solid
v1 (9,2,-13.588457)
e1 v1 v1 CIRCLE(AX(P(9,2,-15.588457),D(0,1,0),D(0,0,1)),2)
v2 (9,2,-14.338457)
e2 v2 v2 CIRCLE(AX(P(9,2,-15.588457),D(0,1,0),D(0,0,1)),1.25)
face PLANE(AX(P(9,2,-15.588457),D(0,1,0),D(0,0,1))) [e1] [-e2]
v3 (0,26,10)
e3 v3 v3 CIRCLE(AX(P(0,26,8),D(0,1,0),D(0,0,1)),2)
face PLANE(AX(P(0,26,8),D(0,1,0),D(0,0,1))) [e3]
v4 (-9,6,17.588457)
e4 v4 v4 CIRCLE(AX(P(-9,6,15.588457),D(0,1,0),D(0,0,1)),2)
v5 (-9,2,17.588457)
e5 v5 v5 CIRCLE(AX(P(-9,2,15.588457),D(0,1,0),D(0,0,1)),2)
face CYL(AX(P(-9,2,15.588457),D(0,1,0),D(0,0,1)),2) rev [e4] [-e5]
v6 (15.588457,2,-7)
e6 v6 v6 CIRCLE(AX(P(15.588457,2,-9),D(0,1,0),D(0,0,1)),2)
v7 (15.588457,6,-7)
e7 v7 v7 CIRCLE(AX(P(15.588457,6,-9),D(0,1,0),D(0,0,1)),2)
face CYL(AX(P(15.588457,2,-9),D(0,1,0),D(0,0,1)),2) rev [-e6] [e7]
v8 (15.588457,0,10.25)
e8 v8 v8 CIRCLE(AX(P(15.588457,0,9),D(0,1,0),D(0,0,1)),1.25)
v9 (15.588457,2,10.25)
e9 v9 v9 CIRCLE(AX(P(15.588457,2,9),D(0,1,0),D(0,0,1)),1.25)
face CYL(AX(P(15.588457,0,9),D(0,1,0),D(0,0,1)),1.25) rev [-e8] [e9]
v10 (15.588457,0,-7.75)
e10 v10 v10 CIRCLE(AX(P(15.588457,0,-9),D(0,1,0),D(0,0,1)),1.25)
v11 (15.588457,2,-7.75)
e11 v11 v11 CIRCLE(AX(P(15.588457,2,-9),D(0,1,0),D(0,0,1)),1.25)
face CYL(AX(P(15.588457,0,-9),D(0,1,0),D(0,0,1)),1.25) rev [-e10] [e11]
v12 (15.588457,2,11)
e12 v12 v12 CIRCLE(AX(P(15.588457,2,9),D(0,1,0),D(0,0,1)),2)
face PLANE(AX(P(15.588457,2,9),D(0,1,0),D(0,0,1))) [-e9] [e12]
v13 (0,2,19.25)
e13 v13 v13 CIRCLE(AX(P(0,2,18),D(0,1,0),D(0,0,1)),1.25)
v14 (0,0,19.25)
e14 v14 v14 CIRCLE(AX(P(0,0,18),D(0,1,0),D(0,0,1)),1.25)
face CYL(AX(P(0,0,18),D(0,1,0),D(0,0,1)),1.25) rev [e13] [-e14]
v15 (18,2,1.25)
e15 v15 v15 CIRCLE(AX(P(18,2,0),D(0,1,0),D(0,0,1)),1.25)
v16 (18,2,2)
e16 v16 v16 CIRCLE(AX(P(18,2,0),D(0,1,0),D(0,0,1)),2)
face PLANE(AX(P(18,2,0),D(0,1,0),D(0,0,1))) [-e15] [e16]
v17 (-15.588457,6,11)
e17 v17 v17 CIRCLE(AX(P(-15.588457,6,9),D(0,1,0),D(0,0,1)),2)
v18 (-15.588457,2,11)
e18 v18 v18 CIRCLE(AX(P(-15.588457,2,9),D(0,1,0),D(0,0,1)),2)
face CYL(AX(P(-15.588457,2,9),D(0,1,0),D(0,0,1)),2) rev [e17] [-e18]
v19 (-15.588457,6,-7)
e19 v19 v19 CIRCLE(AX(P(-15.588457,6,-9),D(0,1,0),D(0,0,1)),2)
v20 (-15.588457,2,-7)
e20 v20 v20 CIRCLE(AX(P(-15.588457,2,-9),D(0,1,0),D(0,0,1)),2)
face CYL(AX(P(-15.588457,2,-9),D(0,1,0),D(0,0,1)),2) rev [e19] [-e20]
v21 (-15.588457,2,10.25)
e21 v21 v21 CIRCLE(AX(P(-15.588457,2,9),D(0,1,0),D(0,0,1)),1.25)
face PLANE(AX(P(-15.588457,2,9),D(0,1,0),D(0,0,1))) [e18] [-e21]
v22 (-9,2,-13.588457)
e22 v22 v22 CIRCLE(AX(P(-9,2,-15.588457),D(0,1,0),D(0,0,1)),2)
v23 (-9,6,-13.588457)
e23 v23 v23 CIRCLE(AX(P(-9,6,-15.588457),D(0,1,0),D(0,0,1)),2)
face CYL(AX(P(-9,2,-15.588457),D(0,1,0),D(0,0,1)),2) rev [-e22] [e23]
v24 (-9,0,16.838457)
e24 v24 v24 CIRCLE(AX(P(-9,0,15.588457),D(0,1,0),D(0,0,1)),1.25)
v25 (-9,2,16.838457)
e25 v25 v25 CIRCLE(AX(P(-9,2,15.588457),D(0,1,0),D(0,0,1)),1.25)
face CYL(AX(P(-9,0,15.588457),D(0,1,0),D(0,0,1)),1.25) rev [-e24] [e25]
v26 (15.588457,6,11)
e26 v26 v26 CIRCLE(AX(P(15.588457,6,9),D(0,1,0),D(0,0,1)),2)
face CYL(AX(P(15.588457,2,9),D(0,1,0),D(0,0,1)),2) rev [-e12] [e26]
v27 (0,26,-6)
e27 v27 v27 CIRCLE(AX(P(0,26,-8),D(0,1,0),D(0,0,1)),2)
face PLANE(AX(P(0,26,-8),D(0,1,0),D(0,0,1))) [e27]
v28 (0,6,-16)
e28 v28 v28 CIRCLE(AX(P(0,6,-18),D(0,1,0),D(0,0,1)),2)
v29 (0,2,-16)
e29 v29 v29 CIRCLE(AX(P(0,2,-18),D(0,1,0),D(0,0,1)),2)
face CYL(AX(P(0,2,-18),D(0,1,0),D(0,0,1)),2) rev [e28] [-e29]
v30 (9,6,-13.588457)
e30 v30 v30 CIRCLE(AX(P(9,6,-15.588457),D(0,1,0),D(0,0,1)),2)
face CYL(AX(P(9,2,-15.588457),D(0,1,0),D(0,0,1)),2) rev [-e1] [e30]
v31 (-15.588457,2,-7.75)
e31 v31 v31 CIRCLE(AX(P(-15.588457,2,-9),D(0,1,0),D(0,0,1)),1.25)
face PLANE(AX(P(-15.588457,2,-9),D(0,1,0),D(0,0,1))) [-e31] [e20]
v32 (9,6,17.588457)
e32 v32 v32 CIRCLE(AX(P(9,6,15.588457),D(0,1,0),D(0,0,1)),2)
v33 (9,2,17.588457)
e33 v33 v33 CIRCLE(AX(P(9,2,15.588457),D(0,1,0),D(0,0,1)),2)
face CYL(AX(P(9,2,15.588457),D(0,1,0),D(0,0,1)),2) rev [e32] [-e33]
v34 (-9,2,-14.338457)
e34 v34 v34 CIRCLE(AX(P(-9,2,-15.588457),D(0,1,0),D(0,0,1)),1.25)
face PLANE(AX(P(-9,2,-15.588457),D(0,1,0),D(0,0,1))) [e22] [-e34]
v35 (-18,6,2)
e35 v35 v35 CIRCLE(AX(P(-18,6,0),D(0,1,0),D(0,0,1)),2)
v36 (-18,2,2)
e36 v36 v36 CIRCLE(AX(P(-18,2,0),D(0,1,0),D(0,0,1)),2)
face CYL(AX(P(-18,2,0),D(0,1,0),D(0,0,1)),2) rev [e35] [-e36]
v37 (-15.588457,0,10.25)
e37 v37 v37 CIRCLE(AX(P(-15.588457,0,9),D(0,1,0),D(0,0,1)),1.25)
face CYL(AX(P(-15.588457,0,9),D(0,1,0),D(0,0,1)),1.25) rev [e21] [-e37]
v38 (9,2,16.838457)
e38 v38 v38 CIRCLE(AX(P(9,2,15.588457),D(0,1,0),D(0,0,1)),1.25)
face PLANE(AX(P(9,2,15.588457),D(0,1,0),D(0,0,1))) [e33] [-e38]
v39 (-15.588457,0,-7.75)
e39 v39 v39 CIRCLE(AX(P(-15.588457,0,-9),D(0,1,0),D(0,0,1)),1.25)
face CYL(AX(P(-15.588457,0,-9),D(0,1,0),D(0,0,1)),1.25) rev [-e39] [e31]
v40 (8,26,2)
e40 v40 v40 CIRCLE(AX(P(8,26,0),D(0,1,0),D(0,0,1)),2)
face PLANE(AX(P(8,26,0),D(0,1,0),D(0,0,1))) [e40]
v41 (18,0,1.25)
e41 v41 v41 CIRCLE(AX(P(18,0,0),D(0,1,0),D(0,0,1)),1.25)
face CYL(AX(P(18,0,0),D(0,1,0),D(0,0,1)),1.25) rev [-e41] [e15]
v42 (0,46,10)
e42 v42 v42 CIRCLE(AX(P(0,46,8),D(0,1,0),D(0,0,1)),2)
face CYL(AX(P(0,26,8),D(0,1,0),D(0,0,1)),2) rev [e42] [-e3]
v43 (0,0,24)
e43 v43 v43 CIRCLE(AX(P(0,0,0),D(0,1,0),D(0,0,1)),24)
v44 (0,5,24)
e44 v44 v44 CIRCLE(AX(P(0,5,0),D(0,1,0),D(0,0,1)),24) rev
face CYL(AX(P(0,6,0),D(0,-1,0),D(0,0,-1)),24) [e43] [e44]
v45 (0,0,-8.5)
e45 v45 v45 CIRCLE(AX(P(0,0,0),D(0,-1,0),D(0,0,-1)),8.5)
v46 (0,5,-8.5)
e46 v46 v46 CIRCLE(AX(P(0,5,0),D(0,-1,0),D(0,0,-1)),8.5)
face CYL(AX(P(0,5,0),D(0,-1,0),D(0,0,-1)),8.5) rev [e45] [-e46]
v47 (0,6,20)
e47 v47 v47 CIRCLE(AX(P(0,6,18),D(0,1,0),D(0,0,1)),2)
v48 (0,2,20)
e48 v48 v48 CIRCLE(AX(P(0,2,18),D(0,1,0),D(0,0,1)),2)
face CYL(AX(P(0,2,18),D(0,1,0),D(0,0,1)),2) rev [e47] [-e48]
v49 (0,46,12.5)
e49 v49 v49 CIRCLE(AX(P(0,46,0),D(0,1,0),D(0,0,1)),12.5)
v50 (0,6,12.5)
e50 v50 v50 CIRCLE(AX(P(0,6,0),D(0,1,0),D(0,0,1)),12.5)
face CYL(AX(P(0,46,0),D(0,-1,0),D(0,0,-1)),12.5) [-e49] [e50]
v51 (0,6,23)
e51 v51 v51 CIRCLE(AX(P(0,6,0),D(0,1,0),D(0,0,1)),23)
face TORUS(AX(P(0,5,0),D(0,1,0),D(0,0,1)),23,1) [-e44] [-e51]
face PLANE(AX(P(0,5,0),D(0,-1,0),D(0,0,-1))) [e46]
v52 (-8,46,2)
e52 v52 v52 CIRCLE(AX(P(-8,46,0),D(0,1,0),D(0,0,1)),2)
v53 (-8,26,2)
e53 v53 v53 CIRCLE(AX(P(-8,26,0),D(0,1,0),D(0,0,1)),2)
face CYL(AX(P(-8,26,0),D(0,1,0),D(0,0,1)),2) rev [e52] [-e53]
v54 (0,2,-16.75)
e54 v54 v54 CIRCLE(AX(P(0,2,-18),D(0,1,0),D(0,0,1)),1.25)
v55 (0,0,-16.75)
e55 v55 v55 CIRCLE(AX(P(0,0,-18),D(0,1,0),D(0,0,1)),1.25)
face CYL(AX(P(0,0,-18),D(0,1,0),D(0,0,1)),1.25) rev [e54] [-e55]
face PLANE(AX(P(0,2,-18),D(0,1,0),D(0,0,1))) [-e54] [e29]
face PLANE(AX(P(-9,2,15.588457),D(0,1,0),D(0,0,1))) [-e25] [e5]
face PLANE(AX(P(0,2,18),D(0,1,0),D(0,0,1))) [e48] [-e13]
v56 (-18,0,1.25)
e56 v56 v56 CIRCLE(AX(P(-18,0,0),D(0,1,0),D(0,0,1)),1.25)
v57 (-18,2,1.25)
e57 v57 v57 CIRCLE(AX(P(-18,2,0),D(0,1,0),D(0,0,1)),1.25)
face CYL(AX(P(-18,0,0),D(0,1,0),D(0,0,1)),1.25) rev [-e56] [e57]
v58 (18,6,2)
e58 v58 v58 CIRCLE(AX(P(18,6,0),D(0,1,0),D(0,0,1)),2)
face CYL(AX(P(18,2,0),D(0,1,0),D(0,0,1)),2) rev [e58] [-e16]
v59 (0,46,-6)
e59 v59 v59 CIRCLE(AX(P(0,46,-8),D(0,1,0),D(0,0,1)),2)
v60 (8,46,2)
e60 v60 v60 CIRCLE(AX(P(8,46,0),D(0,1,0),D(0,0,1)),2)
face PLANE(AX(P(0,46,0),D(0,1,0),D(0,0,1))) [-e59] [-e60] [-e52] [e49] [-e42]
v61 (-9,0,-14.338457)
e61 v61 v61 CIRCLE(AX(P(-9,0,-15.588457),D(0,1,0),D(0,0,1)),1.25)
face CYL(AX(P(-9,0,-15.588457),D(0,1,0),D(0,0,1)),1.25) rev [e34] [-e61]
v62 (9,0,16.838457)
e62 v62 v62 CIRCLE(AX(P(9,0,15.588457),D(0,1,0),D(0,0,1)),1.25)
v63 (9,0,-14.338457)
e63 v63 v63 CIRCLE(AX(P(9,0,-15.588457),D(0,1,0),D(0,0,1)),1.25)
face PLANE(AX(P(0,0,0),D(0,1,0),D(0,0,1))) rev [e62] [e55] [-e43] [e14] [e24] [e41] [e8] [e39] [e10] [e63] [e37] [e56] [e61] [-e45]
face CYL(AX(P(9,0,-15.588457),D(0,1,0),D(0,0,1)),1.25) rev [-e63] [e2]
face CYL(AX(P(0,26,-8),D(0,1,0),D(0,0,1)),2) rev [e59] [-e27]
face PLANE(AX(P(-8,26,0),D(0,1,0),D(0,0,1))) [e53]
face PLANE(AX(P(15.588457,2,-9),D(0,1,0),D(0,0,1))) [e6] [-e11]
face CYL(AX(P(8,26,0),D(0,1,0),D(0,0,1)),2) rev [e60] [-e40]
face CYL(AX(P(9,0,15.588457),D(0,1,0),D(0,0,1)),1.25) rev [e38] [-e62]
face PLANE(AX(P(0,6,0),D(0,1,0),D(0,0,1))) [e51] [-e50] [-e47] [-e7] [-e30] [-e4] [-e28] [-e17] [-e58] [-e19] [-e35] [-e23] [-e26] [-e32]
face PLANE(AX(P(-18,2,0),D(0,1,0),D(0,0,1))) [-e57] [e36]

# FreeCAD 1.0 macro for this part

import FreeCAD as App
import Part
import Sketcher

V = App.Vector


def edges_at(feature, points):
    """Names of the edges that pass closest to the given points."""
    edges = feature.Shape.Edges
    near = lambda p: min(range(len(edges)), key=lambda i: edges[i].distToShape(Part.Vertex(*p))[0])
    return sorted({f"Edge{near(p) + 1}" for p in points})

doc = App.newDocument("Part")
params = doc.addObject("Spreadsheet::Sheet", "Params")
for row, (alias, value) in enumerate([
    ("sketch1_diameter", "48 mm"),
    ("pad1_length", "6 mm"),
    ("sketch2_diameter", "4 mm"),
    ("pocket1_length", "4 mm"),
    ("sketch3_diameter", "2.5 mm"),
    ("sketch4_diameter", "25 mm"),
    ("pad2_length", "40 mm"),
    ("sketch5_diameter", "17 mm"),
    ("pocket3_length", "5 mm"),
    ("fillet_radius", "1 mm"),
    ("sketch6_diameter", "4 mm"),
    ("pocket4_length", "20 mm"),
], start=1):
    params.set(f"A{row}", alias)
    params.set(f"B{row}", "=" + value)
    params.setAlias(f"B{row}", alias)

body = doc.addObject("PartDesign::Body", "Body")

# Sketch on XZ plane
sketch1 = body.newObject("Sketcher::SketchObject", "Sketch")
sketch1.AttachmentSupport = (doc.getObject("XZ_Plane"), [""])
sketch1.MapMode = "FlatFace"
sketch1.addGeometry(Part.Circle(V(0, 0, 0), V(0, 0, 1), 24), False)
sketch1.addConstraint([
    Sketcher.Constraint("Coincident", 0, 3, -1, 1),
    Sketcher.Constraint("Diameter", 0, 48.0),
])
sketch1.setExpression("Constraints[1]", "Params.sketch1_diameter")
pad1 = body.newObject("PartDesign::Pad", "Pad")
pad1.Profile = sketch1
pad1.setExpression("Length", "Params.pad1_length")
pad1.Reversed = True

# Sketch on XZ plane
sketch2 = body.newObject("Sketcher::SketchObject", "Sketch001")
sketch2.AttachmentSupport = (doc.getObject("XZ_Plane"), [""])
sketch2.MapMode = "FlatFace"
sketch2.AttachmentOffset = App.Placement(V(0, 0, -6), App.Rotation())
sketch2.addGeometry([
    Part.Circle(V(0, -18, 0), V(0, 0, 1), 2),  # 0
    Part.Circle(V(9, -15.588457, 0), V(0, 0, 1), 2),  # 1
    Part.Circle(V(15.588457, -9, 0), V(0, 0, 1), 2),  # 2
    Part.Circle(V(18, 0, 0), V(0, 0, 1), 2),  # 3
    Part.Circle(V(15.588457, 9, 0), V(0, 0, 1), 2),  # 4
    Part.Circle(V(9, 15.588457, 0), V(0, 0, 1), 2),  # 5
    Part.Circle(V(0, 18, 0), V(0, 0, 1), 2),  # 6
    Part.Circle(V(-9, 15.588457, 0), V(0, 0, 1), 2),  # 7
    Part.Circle(V(-15.588457, 9, 0), V(0, 0, 1), 2),  # 8
    Part.Circle(V(-18, 0, 0), V(0, 0, 1), 2),  # 9
    Part.Circle(V(-15.588457, -9, 0), V(0, 0, 1), 2),  # 10
    Part.Circle(V(-9, -15.588457, 0), V(0, 0, 1), 2),  # 11
], False)
sketch2.addConstraint([
    Sketcher.Constraint("Equal", 0, 1),
    Sketcher.Constraint("Equal", 1, 2),
    Sketcher.Constraint("Equal", 2, 3),
    Sketcher.Constraint("Equal", 3, 4),
    Sketcher.Constraint("Equal", 4, 5),
    Sketcher.Constraint("Equal", 5, 6),
    Sketcher.Constraint("Equal", 6, 7),
    Sketcher.Constraint("Equal", 7, 8),
    Sketcher.Constraint("Equal", 8, 9),
    Sketcher.Constraint("Equal", 9, 10),
    Sketcher.Constraint("Equal", 10, 11),
    Sketcher.Constraint("Symmetric", 0, 3, 6, 3, -1, 1),
    Sketcher.Constraint("Symmetric", 1, 3, 7, 3, -1, 1),
    Sketcher.Constraint("Symmetric", 2, 3, 8, 3, -1, 1),
    Sketcher.Constraint("Symmetric", 3, 3, 9, 3, -1, 1),
    Sketcher.Constraint("Symmetric", 4, 3, 10, 3, -1, 1),
    Sketcher.Constraint("Symmetric", 5, 3, 11, 3, -1, 1),
    Sketcher.Constraint("Symmetric", 5, 3, 7, 3, -2),
    Sketcher.Constraint("Symmetric", 4, 3, 8, 3, -2),
    Sketcher.Constraint("PointOnObject", 0, 3, -2),
    Sketcher.Constraint("PointOnObject", 3, 3, -1),
    Sketcher.Constraint("Diameter", 0, 4.0),
    Sketcher.Constraint("DistanceY", 0, 3, -1, 1, 18.0),
    Sketcher.Constraint("DistanceX", -1, 1, 1, 3, 9.0),
    Sketcher.Constraint("DistanceY", 2, 3, -1, 1, 9.0),
    Sketcher.Constraint("DistanceX", -1, 1, 3, 3, 18.0),
    Sketcher.Constraint("DistanceY", 1, 3, -1, 1, 15.588457),
    Sketcher.Constraint("DistanceX", -1, 1, 2, 3, 15.588457),
])
sketch2.setExpression("Constraints[21]", "Params.sketch2_diameter")
pocket1 = body.newObject("PartDesign::Pocket", "Pocket")
pocket1.Profile = sketch2
pocket1.setExpression("Length", "Params.pocket1_length")
pocket1.Reversed = True

# Sketch on XZ plane
sketch3 = body.newObject("Sketcher::SketchObject", "Sketch002")
sketch3.AttachmentSupport = (doc.getObject("XZ_Plane"), [""])
sketch3.MapMode = "FlatFace"
sketch3.AttachmentOffset = App.Placement(V(0, 0, -2), App.Rotation())
sketch3.addGeometry([
    Part.Circle(V(0, -18, 0), V(0, 0, 1), 1.25),  # 0
    Part.Circle(V(9, -15.588457, 0), V(0, 0, 1), 1.25),  # 1
    Part.Circle(V(15.588457, -9, 0), V(0, 0, 1), 1.25),  # 2
    Part.Circle(V(18, 0, 0), V(0, 0, 1), 1.25),  # 3
    Part.Circle(V(15.588457, 9, 0), V(0, 0, 1), 1.25),  # 4
    Part.Circle(V(9, 15.588457, 0), V(0, 0, 1), 1.25),  # 5
    Part.Circle(V(0, 18, 0), V(0, 0, 1), 1.25),  # 6
    Part.Circle(V(-9, 15.588457, 0), V(0, 0, 1), 1.25),  # 7
    Part.Circle(V(-15.588457, 9, 0), V(0, 0, 1), 1.25),  # 8
    Part.Circle(V(-18, 0, 0), V(0, 0, 1), 1.25),  # 9
    Part.Circle(V(-15.588457, -9, 0), V(0, 0, 1), 1.25),  # 10
    Part.Circle(V(-9, -15.588457, 0), V(0, 0, 1), 1.25),  # 11
], False)
sketch3.addConstraint([
    Sketcher.Constraint("Equal", 0, 1),
    Sketcher.Constraint("Equal", 1, 2),
    Sketcher.Constraint("Equal", 2, 3),
    Sketcher.Constraint("Equal", 3, 4),
    Sketcher.Constraint("Equal", 4, 5),
    Sketcher.Constraint("Equal", 5, 6),
    Sketcher.Constraint("Equal", 6, 7),
    Sketcher.Constraint("Equal", 7, 8),
    Sketcher.Constraint("Equal", 8, 9),
    Sketcher.Constraint("Equal", 9, 10),
    Sketcher.Constraint("Equal", 10, 11),
    Sketcher.Constraint("Symmetric", 0, 3, 6, 3, -1, 1),
    Sketcher.Constraint("Symmetric", 1, 3, 7, 3, -1, 1),
    Sketcher.Constraint("Symmetric", 2, 3, 8, 3, -1, 1),
    Sketcher.Constraint("Symmetric", 3, 3, 9, 3, -1, 1),
    Sketcher.Constraint("Symmetric", 4, 3, 10, 3, -1, 1),
    Sketcher.Constraint("Symmetric", 5, 3, 11, 3, -1, 1),
    Sketcher.Constraint("Symmetric", 5, 3, 7, 3, -2),
    Sketcher.Constraint("Symmetric", 4, 3, 8, 3, -2),
    Sketcher.Constraint("PointOnObject", 0, 3, -2),
    Sketcher.Constraint("PointOnObject", 3, 3, -1),
    Sketcher.Constraint("Diameter", 0, 2.5),
    Sketcher.Constraint("DistanceY", 0, 3, -1, 1, 18.0),
    Sketcher.Constraint("DistanceX", -1, 1, 1, 3, 9.0),
    Sketcher.Constraint("DistanceY", 2, 3, -1, 1, 9.0),
    Sketcher.Constraint("DistanceX", -1, 1, 3, 3, 18.0),
    Sketcher.Constraint("DistanceY", 1, 3, -1, 1, 15.588457),
    Sketcher.Constraint("DistanceX", -1, 1, 2, 3, 15.588457),
])
sketch3.setExpression("Constraints[21]", "Params.sketch3_diameter")
pocket2 = body.newObject("PartDesign::Pocket", "Pocket001")
pocket2.Profile = sketch3
pocket2.Type = "ThroughAll"
pocket2.Reversed = True

# Sketch on XZ plane
sketch4 = body.newObject("Sketcher::SketchObject", "Sketch003")
sketch4.AttachmentSupport = (doc.getObject("XZ_Plane"), [""])
sketch4.MapMode = "FlatFace"
sketch4.AttachmentOffset = App.Placement(V(0, 0, -6), App.Rotation())
sketch4.addGeometry(Part.Circle(V(0, 0, 0), V(0, 0, 1), 12.5), False)
sketch4.addConstraint([
    Sketcher.Constraint("Coincident", 0, 3, -1, 1),
    Sketcher.Constraint("Diameter", 0, 25.0),
])
sketch4.setExpression("Constraints[1]", "Params.sketch4_diameter")
pad2 = body.newObject("PartDesign::Pad", "Pad001")
pad2.Profile = sketch4
pad2.setExpression("Length", "Params.pad2_length")
pad2.Reversed = True

# Sketch on XZ plane
sketch5 = body.newObject("Sketcher::SketchObject", "Sketch004")
sketch5.AttachmentSupport = (doc.getObject("XZ_Plane"), [""])
sketch5.MapMode = "FlatFace"
sketch5.addGeometry(Part.Circle(V(0, 0, 0), V(0, 0, 1), 8.5), False)
sketch5.addConstraint([
    Sketcher.Constraint("Coincident", 0, 3, -1, 1),
    Sketcher.Constraint("Diameter", 0, 17.0),
])
sketch5.setExpression("Constraints[1]", "Params.sketch5_diameter")
pocket3 = body.newObject("PartDesign::Pocket", "Pocket002")
pocket3.Profile = sketch5
pocket3.setExpression("Length", "Params.pocket3_length")
doc.recompute()

fillet = body.newObject("PartDesign::Fillet", "Fillet")
fillet.Base = (pocket3, edges_at(pocket3, [(0, 6, -24)]))
fillet.setExpression("Radius", "Params.fillet_radius")

# Sketch on XZ plane
sketch6 = body.newObject("Sketcher::SketchObject", "Sketch005")
sketch6.AttachmentSupport = (doc.getObject("XZ_Plane"), [""])
sketch6.MapMode = "FlatFace"
sketch6.AttachmentOffset = App.Placement(V(0, 0, -46), App.Rotation())
sketch6.addGeometry([
    Part.Circle(V(0, -8, 0), V(0, 0, 1), 2),
    Part.Circle(V(8, 0, 0), V(0, 0, 1), 2),
    Part.Circle(V(0, 8, 0), V(0, 0, 1), 2),
    Part.Circle(V(-8, 0, 0), V(0, 0, 1), 2),
], False)
sketch6.addConstraint([
    Sketcher.Constraint("Equal", 0, 1),
    Sketcher.Constraint("Equal", 1, 2),
    Sketcher.Constraint("Equal", 2, 3),
    Sketcher.Constraint("Symmetric", 0, 3, 2, 3, -1, 1),
    Sketcher.Constraint("Symmetric", 1, 3, 3, 3, -1, 1),
    Sketcher.Constraint("PointOnObject", 0, 3, -2),
    Sketcher.Constraint("PointOnObject", 1, 3, -1),
    Sketcher.Constraint("Diameter", 0, 4.0),
    Sketcher.Constraint("DistanceY", 0, 3, -1, 1, 8.0),
    Sketcher.Constraint("DistanceX", -1, 1, 1, 3, 8.0),
])
sketch6.setExpression("Constraints[7]", "Params.sketch6_diameter")
pocket4 = body.newObject("PartDesign::Pocket", "Pocket003")
pocket4.Profile = sketch6
pocket4.setExpression("Length", "Params.pocket4_length")
pocket4.Reversed = True

doc.recompute()
